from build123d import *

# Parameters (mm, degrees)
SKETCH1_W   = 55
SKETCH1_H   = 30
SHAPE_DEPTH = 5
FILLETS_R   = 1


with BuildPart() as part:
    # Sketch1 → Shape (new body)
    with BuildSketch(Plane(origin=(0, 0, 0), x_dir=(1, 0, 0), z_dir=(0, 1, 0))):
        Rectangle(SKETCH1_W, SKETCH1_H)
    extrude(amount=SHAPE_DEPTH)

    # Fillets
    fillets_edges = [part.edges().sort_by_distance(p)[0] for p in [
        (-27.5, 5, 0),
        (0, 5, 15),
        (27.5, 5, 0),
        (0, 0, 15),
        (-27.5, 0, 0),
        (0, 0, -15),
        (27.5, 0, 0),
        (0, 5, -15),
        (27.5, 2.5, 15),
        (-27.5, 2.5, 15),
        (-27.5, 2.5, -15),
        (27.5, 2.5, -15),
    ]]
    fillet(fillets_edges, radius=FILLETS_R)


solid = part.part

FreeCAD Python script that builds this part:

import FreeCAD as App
import Part
import Sketcher

V = App.Vector
Q = App.Units.Quantity

doc = App.newDocument("Part")
params = doc.addObject("Spreadsheet::Sheet", "Params")
for row, (alias, value) in enumerate([
    ("sketch1_width", "55 mm"),
    ("sketch1_height", "30 mm"),
    ("pad1_length", "5 mm"),
    ("fillet_radius", "1 mm"),
], start=1):
    params.set(f"A{row}", alias)
    params.set(f"B{row}", "=" + value)
    params.setAlias(f"B{row}", alias)

body = doc.addObject("PartDesign::Body", "Body")

# Sketch on XZ plane
sketch1 = body.newObject("Sketcher::SketchObject", "Sketch")
sketch1.AttachmentSupport = (doc.getObject("XZ_Plane"), [""])
sketch1.MapMode = "FlatFace"
sketch1.addGeometry(Part.LineSegment(V(-28, -15, 0), V(-28, 15, 0)), False)
sketch1.addGeometry(Part.LineSegment(V(-28, 15, 0), V(28, 15, 0)), False)
sketch1.addGeometry(Part.LineSegment(V(28, 15, 0), V(28, -15, 0)), False)
sketch1.addGeometry(Part.LineSegment(V(28, -15, 0), V(-28, -15, 0)), False)
sketch1.addConstraint(Sketcher.Constraint("Coincident", 0, 2, 1, 1))
sketch1.addConstraint(Sketcher.Constraint("Coincident", 1, 2, 2, 1))
sketch1.addConstraint(Sketcher.Constraint("Coincident", 2, 2, 3, 1))
sketch1.addConstraint(Sketcher.Constraint("Coincident", 3, 2, 0, 1))
sketch1.addConstraint(Sketcher.Constraint("Vertical", 0))
sketch1.addConstraint(Sketcher.Constraint("Horizontal", 1))
sketch1.addConstraint(Sketcher.Constraint("Vertical", 2))
sketch1.addConstraint(Sketcher.Constraint("Horizontal", 3))
sketch1.addConstraint(Sketcher.Constraint("Symmetric", 0, 2, 2, 2, -1, 1))
sketch1.addConstraint(Sketcher.Constraint("DistanceX", 1, 1, 1, 2, Q("55 mm")))
sketch1.addConstraint(Sketcher.Constraint("DistanceY", 0, 1, 0, 2, Q("30 mm")))
sketch1.setExpression("Constraints[9]", "Params.sketch1_width")
sketch1.setExpression("Constraints[10]", "Params.sketch1_height")
pad1 = body.newObject("PartDesign::Pad", "Pad")
pad1.Profile = sketch1
pad1.setExpression("Length", "Params.pad1_length")
pad1.Reversed = True
doc.recompute()

fillet = body.newObject("PartDesign::Fillet", "Fillet")
fillet.Base = (pad1, ["Edge1"])
fillet.UseAllEdges = True
fillet.setExpression("Radius", "Params.fillet_radius")

doc.recompute()
